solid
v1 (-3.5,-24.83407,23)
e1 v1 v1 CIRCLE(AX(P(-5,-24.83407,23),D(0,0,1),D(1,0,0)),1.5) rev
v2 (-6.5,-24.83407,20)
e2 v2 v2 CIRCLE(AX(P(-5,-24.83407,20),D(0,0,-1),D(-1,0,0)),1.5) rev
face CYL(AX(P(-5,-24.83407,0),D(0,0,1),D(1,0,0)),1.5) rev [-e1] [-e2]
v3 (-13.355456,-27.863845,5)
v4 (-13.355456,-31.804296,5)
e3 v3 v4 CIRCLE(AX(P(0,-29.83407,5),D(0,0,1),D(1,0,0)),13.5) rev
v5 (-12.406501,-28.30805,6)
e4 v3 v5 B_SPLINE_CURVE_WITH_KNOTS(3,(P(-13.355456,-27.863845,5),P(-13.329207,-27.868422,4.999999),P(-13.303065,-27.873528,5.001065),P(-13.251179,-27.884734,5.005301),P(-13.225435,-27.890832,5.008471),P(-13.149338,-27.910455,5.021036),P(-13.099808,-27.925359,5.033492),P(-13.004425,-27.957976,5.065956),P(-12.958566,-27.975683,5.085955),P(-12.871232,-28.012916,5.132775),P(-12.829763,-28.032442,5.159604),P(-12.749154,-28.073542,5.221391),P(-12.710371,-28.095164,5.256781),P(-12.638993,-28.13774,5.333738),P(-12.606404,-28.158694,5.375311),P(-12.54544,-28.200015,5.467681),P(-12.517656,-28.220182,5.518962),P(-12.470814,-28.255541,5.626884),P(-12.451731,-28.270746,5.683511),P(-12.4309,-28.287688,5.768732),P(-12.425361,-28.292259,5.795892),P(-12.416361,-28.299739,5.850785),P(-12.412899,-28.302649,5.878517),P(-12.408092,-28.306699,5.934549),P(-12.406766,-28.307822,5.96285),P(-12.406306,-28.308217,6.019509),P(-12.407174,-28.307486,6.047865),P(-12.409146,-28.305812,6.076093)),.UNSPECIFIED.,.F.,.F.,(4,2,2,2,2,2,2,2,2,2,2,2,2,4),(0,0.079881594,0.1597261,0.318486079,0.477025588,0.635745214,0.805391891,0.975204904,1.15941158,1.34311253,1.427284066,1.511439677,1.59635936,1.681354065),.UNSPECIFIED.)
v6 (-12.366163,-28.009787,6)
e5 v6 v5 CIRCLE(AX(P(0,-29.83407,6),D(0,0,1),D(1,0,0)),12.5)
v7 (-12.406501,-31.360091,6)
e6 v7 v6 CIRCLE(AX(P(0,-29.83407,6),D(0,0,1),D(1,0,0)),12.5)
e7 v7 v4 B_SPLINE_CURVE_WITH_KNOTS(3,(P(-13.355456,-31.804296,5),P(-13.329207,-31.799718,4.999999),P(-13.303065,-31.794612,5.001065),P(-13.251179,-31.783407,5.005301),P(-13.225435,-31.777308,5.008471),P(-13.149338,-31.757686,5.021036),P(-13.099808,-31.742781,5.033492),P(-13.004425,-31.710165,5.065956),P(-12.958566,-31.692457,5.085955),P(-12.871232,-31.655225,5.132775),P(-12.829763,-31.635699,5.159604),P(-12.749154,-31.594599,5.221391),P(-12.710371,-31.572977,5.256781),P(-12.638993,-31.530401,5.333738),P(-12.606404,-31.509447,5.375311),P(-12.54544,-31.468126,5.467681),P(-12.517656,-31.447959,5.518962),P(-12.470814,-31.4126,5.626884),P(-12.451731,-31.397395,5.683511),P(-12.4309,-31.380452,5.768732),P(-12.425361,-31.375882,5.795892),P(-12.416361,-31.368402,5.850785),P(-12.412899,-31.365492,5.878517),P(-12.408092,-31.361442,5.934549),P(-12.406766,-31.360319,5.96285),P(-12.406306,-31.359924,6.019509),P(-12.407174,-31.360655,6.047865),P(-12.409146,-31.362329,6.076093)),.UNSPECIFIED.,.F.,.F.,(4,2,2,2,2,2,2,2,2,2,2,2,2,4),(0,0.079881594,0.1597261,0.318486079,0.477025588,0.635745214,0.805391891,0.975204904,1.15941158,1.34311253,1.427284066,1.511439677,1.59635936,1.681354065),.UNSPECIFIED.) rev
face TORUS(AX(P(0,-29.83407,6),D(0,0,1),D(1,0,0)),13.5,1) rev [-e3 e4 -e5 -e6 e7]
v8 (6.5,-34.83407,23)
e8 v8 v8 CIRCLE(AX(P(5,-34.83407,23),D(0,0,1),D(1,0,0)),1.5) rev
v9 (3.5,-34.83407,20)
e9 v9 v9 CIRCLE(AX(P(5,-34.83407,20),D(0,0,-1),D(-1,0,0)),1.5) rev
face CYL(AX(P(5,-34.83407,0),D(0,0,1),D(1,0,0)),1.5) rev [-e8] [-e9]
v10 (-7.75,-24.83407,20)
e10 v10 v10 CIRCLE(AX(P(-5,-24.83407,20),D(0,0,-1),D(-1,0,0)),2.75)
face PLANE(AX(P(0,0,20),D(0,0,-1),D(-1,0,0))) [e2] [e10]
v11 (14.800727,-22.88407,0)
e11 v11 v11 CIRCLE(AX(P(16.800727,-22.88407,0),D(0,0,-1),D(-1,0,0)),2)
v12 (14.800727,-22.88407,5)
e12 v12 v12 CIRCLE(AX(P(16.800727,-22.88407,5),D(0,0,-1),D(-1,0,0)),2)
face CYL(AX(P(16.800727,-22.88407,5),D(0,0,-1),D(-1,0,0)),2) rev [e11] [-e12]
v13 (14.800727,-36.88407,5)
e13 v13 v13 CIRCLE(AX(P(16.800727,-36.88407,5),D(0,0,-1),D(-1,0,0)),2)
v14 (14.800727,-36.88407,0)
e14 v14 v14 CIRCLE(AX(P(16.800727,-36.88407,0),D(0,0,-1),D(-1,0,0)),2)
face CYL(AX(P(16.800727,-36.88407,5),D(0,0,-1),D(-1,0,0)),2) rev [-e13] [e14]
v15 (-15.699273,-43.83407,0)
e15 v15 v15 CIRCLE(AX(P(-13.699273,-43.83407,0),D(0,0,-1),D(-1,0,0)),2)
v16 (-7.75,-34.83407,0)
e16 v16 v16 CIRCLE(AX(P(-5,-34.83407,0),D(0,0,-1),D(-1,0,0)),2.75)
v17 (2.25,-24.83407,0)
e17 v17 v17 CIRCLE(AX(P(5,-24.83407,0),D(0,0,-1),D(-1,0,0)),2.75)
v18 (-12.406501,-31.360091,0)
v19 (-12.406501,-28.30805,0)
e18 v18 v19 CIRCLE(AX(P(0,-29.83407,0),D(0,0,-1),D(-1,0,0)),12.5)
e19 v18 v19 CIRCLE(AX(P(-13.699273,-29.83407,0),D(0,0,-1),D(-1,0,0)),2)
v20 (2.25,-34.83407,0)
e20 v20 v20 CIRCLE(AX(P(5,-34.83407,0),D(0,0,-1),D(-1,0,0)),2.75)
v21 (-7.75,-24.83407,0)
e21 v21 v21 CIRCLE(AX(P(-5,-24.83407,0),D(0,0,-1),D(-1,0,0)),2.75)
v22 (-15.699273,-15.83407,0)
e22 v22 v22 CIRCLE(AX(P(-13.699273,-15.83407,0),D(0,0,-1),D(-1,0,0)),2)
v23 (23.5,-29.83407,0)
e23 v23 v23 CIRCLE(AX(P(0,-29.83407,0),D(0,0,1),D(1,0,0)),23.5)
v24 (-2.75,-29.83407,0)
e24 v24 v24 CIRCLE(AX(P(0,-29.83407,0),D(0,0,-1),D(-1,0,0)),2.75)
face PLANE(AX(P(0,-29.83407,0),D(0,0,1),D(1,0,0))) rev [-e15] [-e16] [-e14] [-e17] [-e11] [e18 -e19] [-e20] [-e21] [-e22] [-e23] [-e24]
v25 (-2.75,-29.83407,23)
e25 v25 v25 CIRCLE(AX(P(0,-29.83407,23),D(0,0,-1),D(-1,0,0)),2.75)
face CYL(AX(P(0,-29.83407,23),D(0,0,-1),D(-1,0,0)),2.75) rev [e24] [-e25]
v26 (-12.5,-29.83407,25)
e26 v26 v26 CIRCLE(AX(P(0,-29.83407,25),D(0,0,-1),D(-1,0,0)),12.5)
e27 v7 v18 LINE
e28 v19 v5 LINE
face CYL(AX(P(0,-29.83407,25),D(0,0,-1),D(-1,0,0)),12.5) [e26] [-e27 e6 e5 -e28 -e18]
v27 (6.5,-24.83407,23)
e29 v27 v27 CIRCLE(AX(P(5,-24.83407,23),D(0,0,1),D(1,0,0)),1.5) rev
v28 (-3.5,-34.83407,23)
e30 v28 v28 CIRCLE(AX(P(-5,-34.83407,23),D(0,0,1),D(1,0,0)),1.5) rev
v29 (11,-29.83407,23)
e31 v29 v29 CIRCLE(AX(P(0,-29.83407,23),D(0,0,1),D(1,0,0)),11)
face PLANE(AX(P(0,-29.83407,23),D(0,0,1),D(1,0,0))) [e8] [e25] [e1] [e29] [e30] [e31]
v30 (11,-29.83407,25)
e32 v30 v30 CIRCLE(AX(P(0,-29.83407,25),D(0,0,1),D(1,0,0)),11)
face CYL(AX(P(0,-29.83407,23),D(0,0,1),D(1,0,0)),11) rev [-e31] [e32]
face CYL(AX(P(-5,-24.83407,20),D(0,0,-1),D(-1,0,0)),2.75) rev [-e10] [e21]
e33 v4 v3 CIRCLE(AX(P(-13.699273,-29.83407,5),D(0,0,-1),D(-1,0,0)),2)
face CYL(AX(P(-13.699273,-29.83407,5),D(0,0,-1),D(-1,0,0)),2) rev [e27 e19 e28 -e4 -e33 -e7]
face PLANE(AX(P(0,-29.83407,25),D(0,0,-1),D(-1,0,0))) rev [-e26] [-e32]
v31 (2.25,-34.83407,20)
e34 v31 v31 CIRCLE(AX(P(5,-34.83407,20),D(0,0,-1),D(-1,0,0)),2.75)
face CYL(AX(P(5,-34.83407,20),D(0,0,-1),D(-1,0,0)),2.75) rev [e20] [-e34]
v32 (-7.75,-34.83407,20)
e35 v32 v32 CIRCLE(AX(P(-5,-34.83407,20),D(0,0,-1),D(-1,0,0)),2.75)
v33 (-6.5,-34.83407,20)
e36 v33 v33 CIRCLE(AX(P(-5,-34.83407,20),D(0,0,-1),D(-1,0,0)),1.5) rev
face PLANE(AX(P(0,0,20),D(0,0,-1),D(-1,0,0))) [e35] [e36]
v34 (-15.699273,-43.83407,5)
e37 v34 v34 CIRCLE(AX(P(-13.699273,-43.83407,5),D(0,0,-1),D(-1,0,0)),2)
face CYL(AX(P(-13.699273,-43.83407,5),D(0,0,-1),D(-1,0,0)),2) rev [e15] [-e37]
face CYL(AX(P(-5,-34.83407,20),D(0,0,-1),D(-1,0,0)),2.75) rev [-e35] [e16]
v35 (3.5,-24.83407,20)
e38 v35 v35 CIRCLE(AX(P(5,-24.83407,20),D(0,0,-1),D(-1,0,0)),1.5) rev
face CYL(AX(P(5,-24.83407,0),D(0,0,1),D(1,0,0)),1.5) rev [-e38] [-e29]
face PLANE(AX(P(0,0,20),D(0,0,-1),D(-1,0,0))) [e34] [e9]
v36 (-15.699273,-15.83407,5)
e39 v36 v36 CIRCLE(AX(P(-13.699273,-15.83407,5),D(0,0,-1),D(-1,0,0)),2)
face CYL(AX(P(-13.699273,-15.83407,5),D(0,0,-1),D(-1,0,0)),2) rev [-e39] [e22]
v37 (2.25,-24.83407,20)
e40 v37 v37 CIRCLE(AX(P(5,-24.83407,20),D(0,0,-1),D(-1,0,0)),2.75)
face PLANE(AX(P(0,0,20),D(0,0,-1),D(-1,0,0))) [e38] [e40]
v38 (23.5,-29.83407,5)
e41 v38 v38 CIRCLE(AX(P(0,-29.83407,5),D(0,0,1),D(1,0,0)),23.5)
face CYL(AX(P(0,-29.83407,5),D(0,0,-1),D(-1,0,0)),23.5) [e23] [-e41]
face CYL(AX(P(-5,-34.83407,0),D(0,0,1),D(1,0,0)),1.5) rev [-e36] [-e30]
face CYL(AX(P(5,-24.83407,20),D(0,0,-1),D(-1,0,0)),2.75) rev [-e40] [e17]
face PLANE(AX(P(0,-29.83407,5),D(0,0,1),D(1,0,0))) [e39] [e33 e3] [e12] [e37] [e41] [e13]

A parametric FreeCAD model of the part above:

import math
import FreeCAD as App
import Part
import Sketcher
from FreeCAD import Vector
Q = App.Units.Quantity


def edges_at(feature, points):
    """Names of the edges that pass closest to the given points."""
    edges = feature.Shape.Edges
    near = lambda p: min(range(len(edges)), key=lambda i: edges[i].distToShape(Part.Vertex(*p))[0])
    return sorted({f"Edge{near(p) + 1}" for p in points})

doc = App.newDocument("Part")
body = doc.addObject("PartDesign::Body", "Body")

sketch1 = doc.addObject("Sketcher::SketchObject", "Sketch")
body.addObject(sketch1)
sketch1.AttachmentSupport = (doc.XY_Plane, [""])
sketch1.MapMode = "FlatFace"
sketch1.addGeometry(Part.Circle(Vector(0, -29.83407, 0), Vector(0, 0, 1), 23.5), False)
sketch1.addConstraint(Sketcher.Constraint("PointOnObject", 0, 3, -2))
sketch1.addConstraint(Sketcher.Constraint("Diameter", 0, Q("47 mm")))
sketch1.addConstraint(Sketcher.Constraint("DistanceY", 0, 3, -1, 1, Q("29.83407 mm")))
pad1 = doc.addObject("PartDesign::Pad", "Pad")
body.addObject(pad1)
pad1.Profile = sketch1
pad1.Length = 5

sketch2 = doc.addObject("Sketcher::SketchObject", "Sketch001")
body.addObject(sketch2)
sketch2.AttachmentSupport = (doc.XY_Plane, [""])
sketch2.MapMode = "FlatFace"
sketch2.addGeometry(Part.Circle(Vector(-13.699273, -15.83407, 0), Vector(0, 0, 1), 2), False)
sketch2.addGeometry(Part.Circle(Vector(-13.699273, -43.83407, 0), Vector(0, 0, 1), 2), False)
sketch2.addGeometry(Part.Circle(Vector(16.800727, -22.88407, 0), Vector(0, 0, 1), 2), False)
sketch2.addGeometry(Part.Circle(Vector(16.800727, -36.88407, 0), Vector(0, 0, 1), 2), False)
sketch2.addGeometry(Part.Circle(Vector(-13.699273, -29.83407, 0), Vector(0, 0, 1), 2), False)
sketch2.addConstraint(Sketcher.Constraint("Equal", 0, 1))
sketch2.addConstraint(Sketcher.Constraint("Equal", 1, 2))
sketch2.addConstraint(Sketcher.Constraint("Equal", 2, 3))
sketch2.addConstraint(Sketcher.Constraint("Equal", 3, 4))
sketch2.addConstraint(Sketcher.Constraint("Vertical", 0, 3, 1, 3))
sketch2.addConstraint(Sketcher.Constraint("Vertical", 2, 3, 3, 3))
sketch2.addConstraint(Sketcher.Constraint("Vertical", 1, 3, 4, 3))
sketch2.addConstraint(Sketcher.Constraint("Diameter", 0, Q("4 mm")))
sketch2.addConstraint(Sketcher.Constraint("DistanceY", 1, 3, 0, 3, Q("28 mm")))
sketch2.addConstraint(Sketcher.Constraint("DistanceY", 3, 3, 2, 3, Q("14 mm")))
sketch2.addConstraint(Sketcher.Constraint("DistanceY", 1, 3, 4, 3, Q("14 mm")))
sketch2.addConstraint(Sketcher.Constraint("DistanceX", 0, 3, 2, 3, Q("30.5 mm")))
sketch2.addConstraint(Sketcher.Constraint("DistanceY", 2, 3, 0, 3, Q("7.05 mm")))
sketch2.addConstraint(Sketcher.Constraint("DistanceY", 0, 3, -1, 1, Q("15.83407 mm")))
sketch2.addConstraint(Sketcher.Constraint("DistanceX", 0, 3, -1, 1, Q("13.699273 mm")))
pocket1 = doc.addObject("PartDesign::Pocket", "Pocket")
body.addObject(pocket1)
pocket1.Profile = sketch2
pocket1.Type = "ThroughAll"
pocket1.Reversed = True

sketch3 = doc.addObject("Sketcher::SketchObject", "Sketch002")
body.addObject(sketch3)
sketch3.AttachmentSupport = (doc.XY_Plane, [""])
sketch3.MapMode = "FlatFace"
sketch3.addGeometry(Part.Circle(Vector(0, -29.83407, 0), Vector(0, 0, 1), 12.5), False)
sketch3.addConstraint(Sketcher.Constraint("PointOnObject", 0, 3, -2))
sketch3.addConstraint(Sketcher.Constraint("Diameter", 0, Q("25 mm")))
sketch3.addConstraint(Sketcher.Constraint("DistanceY", 0, 3, -1, 1, Q("29.83407 mm")))
pad2 = doc.addObject("PartDesign::Pad", "Pad001")
body.addObject(pad2)
pad2.Profile = sketch3
pad2.Length = 25

sketch4 = doc.addObject("Sketcher::SketchObject", "Sketch003")
body.addObject(sketch4)
sketch4.AttachmentSupport = (doc.XY_Plane, [""])
sketch4.MapMode = "FlatFace"
sketch4.AttachmentOffset = App.Placement(Vector(0, 0, 25), App.Rotation())
sketch4.addGeometry(Part.ArcOfCircle(Part.Circle(Vector(-5, -24.83407, 0), Vector(0, 0, 1), 1.5), math.radians(0), math.radians(270)), False)
sketch4.addGeometry(Part.ArcOfCircle(Part.Circle(Vector(-5, -24.83407, 0), Vector(0, 0, 1), 1.5), math.radians(-90), math.radians(0)), False)
sketch4.addGeometry(Part.ArcOfCircle(Part.Circle(Vector(5, -24.83407, 0), Vector(0, 0, 1), 1.5), math.radians(180), math.radians(270)), False)
sketch4.addGeometry(Part.ArcOfCircle(Part.Circle(Vector(5, -24.83407, 0), Vector(0, 0, 1), 1.5), math.radians(-90), math.radians(0)), False)
sketch4.addGeometry(Part.ArcOfCircle(Part.Circle(Vector(5, -24.83407, 0), Vector(0, 0, 1), 1.5), math.radians(0), math.radians(180)), False)
sketch4.addGeometry(Part.ArcOfCircle(Part.Circle(Vector(5, -34.83407, 0), Vector(0, 0, 1), 1.5), math.radians(90), math.radians(180)), False)
sketch4.addGeometry(Part.ArcOfCircle(Part.Circle(Vector(5, -34.83407, 0), Vector(0, 0, 1), 1.5), math.radians(180), math.radians(360)), False)
sketch4.addGeometry(Part.ArcOfCircle(Part.Circle(Vector(5, -34.83407, 0), Vector(0, 0, 1), 1.5), math.radians(0), math.radians(90)), False)
sketch4.addGeometry(Part.Circle(Vector(0, -29.83407, 0), Vector(0, 0, 1), 4), False)
sketch4.addGeometry(Part.Circle(Vector(-5, -34.83407, 0), Vector(0, 0, 1), 1.5), False)
sketch4.addConstraint(Sketcher.Constraint("Tangent", 0, 1, 1, 2))
sketch4.addConstraint(Sketcher.Constraint("Coincident", 1, 1, 0, 2))
sketch4.addConstraint(Sketcher.Constraint("Tangent", 2, 2, 3, 1))
sketch4.addConstraint(Sketcher.Constraint("Tangent", 3, 2, 4, 1))
sketch4.addConstraint(Sketcher.Constraint("Tangent", 4, 2, 2, 1))
sketch4.addConstraint(Sketcher.Constraint("Tangent", 5, 2, 6, 1))
sketch4.addConstraint(Sketcher.Constraint("Tangent", 6, 2, 7, 1))
sketch4.addConstraint(Sketcher.Constraint("Tangent", 7, 2, 5, 1))
sketch4.addConstraint(Sketcher.Constraint("Equal", 1, 2))
sketch4.addConstraint(Sketcher.Constraint("Equal", 4, 5))
sketch4.addConstraint(Sketcher.Constraint("Equal", 7, 9))
sketch4.addConstraint(Sketcher.Constraint("Symmetric", 0, 3, 2, 3, -2))
sketch4.addConstraint(Sketcher.Constraint("Symmetric", 5, 3, 9, 3, -2))
sketch4.addConstraint(Sketcher.Constraint("PointOnObject", 8, 3, -2))
sketch4.addConstraint(Sketcher.Constraint("Horizontal", 4, 3, 0, 1))
sketch4.addConstraint(Sketcher.Constraint("Horizontal", 0, 1, 3, 2))
sketch4.addConstraint(Sketcher.Constraint("Horizontal", 3, 2, 4, 2))
sketch4.addConstraint(Sketcher.Constraint("Horizontal", 9, 3, 5, 2))
sketch4.addConstraint(Sketcher.Constraint("Horizontal", 5, 2, 6, 2))
sketch4.addConstraint(Sketcher.Constraint("Vertical", 4, 3, 5, 3))
sketch4.addConstraint(Sketcher.Constraint("Vertical", 9, 3, 1, 1))
sketch4.addConstraint(Sketcher.Constraint("Vertical", 7, 3, 2, 2))
sketch4.addConstraint(Sketcher.Constraint("Vertical", 2, 2, 7, 2))
sketch4.addConstraint(Sketcher.Constraint("Diameter", 8, Q("8 mm")))
sketch4.addConstraint(Sketcher.Constraint("Diameter", 9, Q("3 mm")))
sketch4.addConstraint(Sketcher.Constraint("DistanceX", 0, 3, -1, 1, Q("5 mm")))
sketch4.addConstraint(Sketcher.Constraint("DistanceY", 5, 3, 2, 3, Q("10 mm")))
sketch4.addConstraint(Sketcher.Constraint("DistanceY", 8, 3, 1, 3, Q("5 mm")))
sketch4.addConstraint(Sketcher.Constraint("DistanceY", 0, 3, -1, 1, Q("24.83407 mm")))
pocket2 = doc.addObject("PartDesign::Pocket", "Pocket001")
body.addObject(pocket2)
pocket2.Profile = sketch4
pocket2.Type = "ThroughAll"

sketch5 = doc.addObject("Sketcher::SketchObject", "Sketch004")
body.addObject(sketch5)
sketch5.AttachmentSupport = (doc.XY_Plane, [""])
sketch5.MapMode = "FlatFace"
sketch5.AttachmentOffset = App.Placement(Vector(0, 0, 25), App.Rotation())
sketch5.addGeometry(Part.Circle(Vector(0, -29.83407, 0), Vector(0, 0, 1), 11), False)
sketch5.addConstraint(Sketcher.Constraint("PointOnObject", 0, 3, -2))
sketch5.addConstraint(Sketcher.Constraint("Diameter", 0, Q("22 mm")))
sketch5.addConstraint(Sketcher.Constraint("DistanceY", 0, 3, -1, 1, Q("29.83407 mm")))
pocket3 = doc.addObject("PartDesign::Pocket", "Pocket002")
body.addObject(pocket3)
pocket3.Profile = sketch5
pocket3.Length = 2

sketch6 = doc.addObject("Sketcher::SketchObject", "Sketch005")
body.addObject(sketch6)
sketch6.AttachmentSupport = (doc.XY_Plane, [""])
sketch6.MapMode = "FlatFace"
sketch6.AttachmentOffset = App.Placement(Vector(0, 0, 20), App.Rotation())
sketch6.addGeometry(Part.Circle(Vector(5, -24.83407, 0), Vector(0, 0, 1), 2.75), False)
sketch6.addGeometry(Part.Circle(Vector(5, -24.83407, 0), Vector(0, 0, 1), 1.5), False)
sketch6.addGeometry(Part.Circle(Vector(-5, -24.83407, 0), Vector(0, 0, 1), 2.75), False)
sketch6.addGeometry(Part.Circle(Vector(-5, -24.83407, 0), Vector(0, 0, 1), 1.5), False)
sketch6.addGeometry(Part.Circle(Vector(5, -34.83407, 0), Vector(0, 0, 1), 2.75), False)
sketch6.addGeometry(Part.Circle(Vector(5, -34.83407, 0), Vector(0, 0, 1), 1.5), False)
sketch6.addGeometry(Part.Circle(Vector(-5, -34.83407, 0), Vector(0, 0, 1), 2.75), False)
sketch6.addGeometry(Part.Circle(Vector(-5, -34.83407, 0), Vector(0, 0, 1), 1.5), False)
sketch6.addConstraint(Sketcher.Constraint("Coincident", 1, 3, 0, 3))
sketch6.addConstraint(Sketcher.Constraint("Coincident", 3, 3, 2, 3))
sketch6.addConstraint(Sketcher.Constraint("Coincident", 5, 3, 4, 3))
sketch6.addConstraint(Sketcher.Constraint("Coincident", 7, 3, 6, 3))
sketch6.addConstraint(Sketcher.Constraint("Equal", 0, 2))
sketch6.addConstraint(Sketcher.Constraint("Equal", 1, 3))
sketch6.addConstraint(Sketcher.Constraint("Equal", 2, 4))
sketch6.addConstraint(Sketcher.Constraint("Equal", 3, 5))
sketch6.addConstraint(Sketcher.Constraint("Equal", 4, 6))
sketch6.addConstraint(Sketcher.Constraint("Equal", 5, 7))
sketch6.addConstraint(Sketcher.Constraint("Symmetric", 0, 3, 2, 3, -2))
sketch6.addConstraint(Sketcher.Constraint("Symmetric", 4, 3, 6, 3, -2))
sketch6.addConstraint(Sketcher.Constraint("Vertical", 1, 3, 4, 3))
sketch6.addConstraint(Sketcher.Constraint("Diameter", 1, Q("3 mm")))
sketch6.addConstraint(Sketcher.Constraint("Diameter", 0, Q("5.5 mm")))
sketch6.addConstraint(Sketcher.Constraint("DistanceX", -1, 1, 0, 3, Q("5 mm")))
sketch6.addConstraint(Sketcher.Constraint("DistanceY", 4, 3, 0, 3, Q("10 mm")))
sketch6.addConstraint(Sketcher.Constraint("DistanceY", 0, 3, -1, 1, Q("24.83407 mm")))
pocket4 = doc.addObject("PartDesign::Pocket", "Pocket003")
body.addObject(pocket4)
pocket4.Profile = sketch6
pocket4.Length = 20

sketch7 = doc.addObject("Sketcher::SketchObject", "Sketch006")
body.addObject(sketch7)
sketch7.AttachmentSupport = (doc.XY_Plane, [""])
sketch7.MapMode = "FlatFace"
sketch7.AttachmentOffset = App.Placement(Vector(0, 0, 23), App.Rotation())
sketch7.addGeometry(Part.Circle(Vector(0, -29.83407, 0), Vector(0, 0, 1), 4), False)
sketch7.addGeometry(Part.Circle(Vector(0, -29.83407, 0), Vector(0, 0, 1), 2.75), False)
sketch7.addConstraint(Sketcher.Constraint("Coincident", 1, 3, 0, 3))
sketch7.addConstraint(Sketcher.Constraint("PointOnObject", 0, 3, -2))
sketch7.addConstraint(Sketcher.Constraint("Diameter", 0, Q("8 mm")))
sketch7.addConstraint(Sketcher.Constraint("Diameter", 1, Q("5.5 mm")))
sketch7.addConstraint(Sketcher.Constraint("DistanceY", 0, 3, -1, 1, Q("29.83407 mm")))
pad3 = doc.addObject("PartDesign::Pad", "Pad002")
body.addObject(pad3)
pad3.Profile = sketch7
pad3.Length = 23
pad3.Reversed = True
doc.recompute()

fillet = doc.addObject("PartDesign::Fillet", "Fillet")
body.addObject(fillet)
fillet.Base = (pad3, edges_at(pad3, [(12.5, -29.834, 5)]))
fillet.Radius = 1

doc.recompute()
